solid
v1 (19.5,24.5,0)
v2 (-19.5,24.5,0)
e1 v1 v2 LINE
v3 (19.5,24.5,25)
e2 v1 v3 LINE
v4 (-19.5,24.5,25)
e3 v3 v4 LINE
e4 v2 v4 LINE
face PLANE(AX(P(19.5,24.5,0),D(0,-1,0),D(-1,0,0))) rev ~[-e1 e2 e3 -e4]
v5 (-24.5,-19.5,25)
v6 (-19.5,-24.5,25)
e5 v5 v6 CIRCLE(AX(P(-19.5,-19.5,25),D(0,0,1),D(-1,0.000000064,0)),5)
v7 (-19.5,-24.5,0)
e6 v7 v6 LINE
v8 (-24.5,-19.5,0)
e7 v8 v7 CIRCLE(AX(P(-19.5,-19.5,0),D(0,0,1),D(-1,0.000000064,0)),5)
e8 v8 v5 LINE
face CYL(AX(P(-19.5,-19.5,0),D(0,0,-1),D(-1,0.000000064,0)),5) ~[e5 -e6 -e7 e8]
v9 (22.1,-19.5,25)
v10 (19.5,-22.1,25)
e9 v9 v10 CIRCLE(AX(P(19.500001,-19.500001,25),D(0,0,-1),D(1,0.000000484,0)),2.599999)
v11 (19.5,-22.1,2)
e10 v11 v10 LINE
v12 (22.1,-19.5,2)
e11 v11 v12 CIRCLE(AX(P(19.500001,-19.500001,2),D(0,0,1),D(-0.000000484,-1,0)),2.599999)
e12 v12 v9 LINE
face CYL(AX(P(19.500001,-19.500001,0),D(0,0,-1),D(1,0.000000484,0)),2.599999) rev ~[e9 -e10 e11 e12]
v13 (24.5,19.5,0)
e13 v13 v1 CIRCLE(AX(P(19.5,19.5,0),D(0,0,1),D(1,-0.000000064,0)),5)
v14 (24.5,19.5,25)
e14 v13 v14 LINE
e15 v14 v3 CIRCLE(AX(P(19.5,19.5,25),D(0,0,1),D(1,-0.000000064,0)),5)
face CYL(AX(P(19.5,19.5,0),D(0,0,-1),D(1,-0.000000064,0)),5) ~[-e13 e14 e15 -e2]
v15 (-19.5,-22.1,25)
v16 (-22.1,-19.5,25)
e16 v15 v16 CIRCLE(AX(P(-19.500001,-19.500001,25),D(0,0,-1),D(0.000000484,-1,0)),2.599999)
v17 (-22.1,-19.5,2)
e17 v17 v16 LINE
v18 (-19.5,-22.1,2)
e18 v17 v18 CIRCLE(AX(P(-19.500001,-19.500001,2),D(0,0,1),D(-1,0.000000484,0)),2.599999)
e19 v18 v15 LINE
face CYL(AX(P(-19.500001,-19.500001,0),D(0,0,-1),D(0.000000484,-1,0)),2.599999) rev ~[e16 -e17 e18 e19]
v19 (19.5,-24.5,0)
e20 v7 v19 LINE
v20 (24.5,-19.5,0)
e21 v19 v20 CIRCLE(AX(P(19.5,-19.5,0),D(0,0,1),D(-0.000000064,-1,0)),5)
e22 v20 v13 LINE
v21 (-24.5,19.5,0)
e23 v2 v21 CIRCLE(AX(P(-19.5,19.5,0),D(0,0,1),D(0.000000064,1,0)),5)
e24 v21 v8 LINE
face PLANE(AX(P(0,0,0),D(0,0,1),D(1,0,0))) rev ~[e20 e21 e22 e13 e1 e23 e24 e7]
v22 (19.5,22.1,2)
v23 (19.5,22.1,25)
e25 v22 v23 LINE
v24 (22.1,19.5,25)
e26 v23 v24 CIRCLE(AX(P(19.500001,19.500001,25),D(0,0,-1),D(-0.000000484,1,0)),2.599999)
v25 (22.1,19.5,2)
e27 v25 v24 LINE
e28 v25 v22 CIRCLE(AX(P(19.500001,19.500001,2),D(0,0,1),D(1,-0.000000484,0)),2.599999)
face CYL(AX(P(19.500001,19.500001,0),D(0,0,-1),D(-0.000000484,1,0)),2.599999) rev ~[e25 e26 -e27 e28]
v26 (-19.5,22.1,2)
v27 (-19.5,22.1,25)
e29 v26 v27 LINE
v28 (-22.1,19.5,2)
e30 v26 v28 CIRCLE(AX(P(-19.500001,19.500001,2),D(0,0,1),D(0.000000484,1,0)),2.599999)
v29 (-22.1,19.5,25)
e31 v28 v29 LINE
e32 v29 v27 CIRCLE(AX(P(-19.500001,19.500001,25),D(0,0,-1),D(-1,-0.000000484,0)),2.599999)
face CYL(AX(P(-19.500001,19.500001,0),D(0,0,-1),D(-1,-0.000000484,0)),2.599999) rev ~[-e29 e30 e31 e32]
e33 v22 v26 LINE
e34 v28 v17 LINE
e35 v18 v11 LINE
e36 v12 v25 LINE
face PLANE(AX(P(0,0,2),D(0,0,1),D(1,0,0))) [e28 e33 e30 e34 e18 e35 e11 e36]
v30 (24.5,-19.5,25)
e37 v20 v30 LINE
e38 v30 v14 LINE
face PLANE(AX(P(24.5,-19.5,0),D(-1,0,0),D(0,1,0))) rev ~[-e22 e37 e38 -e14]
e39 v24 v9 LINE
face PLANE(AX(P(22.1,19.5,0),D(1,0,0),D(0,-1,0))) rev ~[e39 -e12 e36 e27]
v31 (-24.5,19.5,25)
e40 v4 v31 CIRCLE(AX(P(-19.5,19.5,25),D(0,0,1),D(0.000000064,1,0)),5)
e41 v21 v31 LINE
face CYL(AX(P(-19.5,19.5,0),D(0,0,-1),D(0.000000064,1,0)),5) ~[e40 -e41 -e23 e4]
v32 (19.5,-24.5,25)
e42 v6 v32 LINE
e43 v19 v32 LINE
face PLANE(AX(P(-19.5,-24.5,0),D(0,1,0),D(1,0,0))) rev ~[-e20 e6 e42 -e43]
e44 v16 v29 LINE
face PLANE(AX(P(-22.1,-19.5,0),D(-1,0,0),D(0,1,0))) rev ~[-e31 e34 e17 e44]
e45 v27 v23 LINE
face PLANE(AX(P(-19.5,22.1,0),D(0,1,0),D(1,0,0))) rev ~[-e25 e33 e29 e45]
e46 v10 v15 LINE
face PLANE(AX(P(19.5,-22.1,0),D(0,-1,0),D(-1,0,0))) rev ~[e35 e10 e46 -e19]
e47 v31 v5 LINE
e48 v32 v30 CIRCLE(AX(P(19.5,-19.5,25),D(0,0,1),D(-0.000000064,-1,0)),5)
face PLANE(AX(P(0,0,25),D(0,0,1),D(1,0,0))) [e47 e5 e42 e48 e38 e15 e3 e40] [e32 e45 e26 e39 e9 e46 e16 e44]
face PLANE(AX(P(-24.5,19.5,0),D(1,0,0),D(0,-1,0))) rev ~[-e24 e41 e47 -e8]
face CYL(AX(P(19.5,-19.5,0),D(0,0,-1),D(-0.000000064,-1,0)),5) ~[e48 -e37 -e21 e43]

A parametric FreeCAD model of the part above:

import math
import FreeCAD as App
import Part
import Sketcher
Q = App.Units.Quantity

doc = App.newDocument("Part")
body = doc.addObject("PartDesign::Body", "Body")

# Sketch on XY plane
sketch1 = doc.addObject("Sketcher::SketchObject", "Sketch")
body.addObject(sketch1)
sketch1.AttachmentSupport = (doc.XY_Plane, [""])
sketch1.MapMode = "FlatFace"
sketch1.addGeometry(Part.ArcOfCircle(Part.Circle(App.Vector(-19.5, 19.5, 0), App.Vector(0, 0, 1), 5), math.radians(89.999996), math.radians(180.000004)), False)
sketch1.addGeometry(Part.LineSegment(App.Vector(-24.5, 19.5, 0), App.Vector(-24.5, -19.5, 0)), False)
sketch1.addGeometry(Part.ArcOfCircle(Part.Circle(App.Vector(-19.5, -19.5, 0), App.Vector(0, 0, 1), 5), math.radians(179.999996), math.radians(270.000004)), False)
sketch1.addGeometry(Part.LineSegment(App.Vector(-19.5, -24.5, 0), App.Vector(19.5, -24.5, 0)), False)
sketch1.addGeometry(Part.ArcOfCircle(Part.Circle(App.Vector(19.5, -19.5, 0), App.Vector(0, 0, 1), 5), math.radians(-90.000004), math.radians(0.000004)), False)
sketch1.addGeometry(Part.LineSegment(App.Vector(24.5, -19.5, 0), App.Vector(24.5, 19.5, 0)), False)
sketch1.addGeometry(Part.ArcOfCircle(Part.Circle(App.Vector(19.5, 19.5, 0), App.Vector(0, 0, 1), 5), math.radians(-0.000004), math.radians(90.000004)), False)
sketch1.addGeometry(Part.LineSegment(App.Vector(19.5, 24.5, 0), App.Vector(-19.5, 24.5, 0)), False)
sketch1.addGeometry(Part.ArcOfCircle(Part.Circle(App.Vector(-19.500001, -19.500001, 0), App.Vector(0, 0, 1), 2.599999), math.radians(179.999972), math.radians(270.000028)), False)
sketch1.addGeometry(Part.LineSegment(App.Vector(-22.1, -19.5, 0), App.Vector(-22.1, 19.5, 0)), False)
sketch1.addGeometry(Part.ArcOfCircle(Part.Circle(App.Vector(-19.500001, 19.500001, 0), App.Vector(0, 0, 1), 2.599999), math.radians(89.999972), math.radians(180.000028)), False)
sketch1.addGeometry(Part.LineSegment(App.Vector(-19.5, 22.1, 0), App.Vector(19.5, 22.1, 0)), False)
sketch1.addGeometry(Part.ArcOfCircle(Part.Circle(App.Vector(19.500001, 19.500001, 0), App.Vector(0, 0, 1), 2.599999), math.radians(-0.000028), math.radians(90.000028)), False)
sketch1.addGeometry(Part.LineSegment(App.Vector(22.1, 19.5, 0), App.Vector(22.1, -19.5, 0)), False)
sketch1.addGeometry(Part.ArcOfCircle(Part.Circle(App.Vector(19.500001, -19.500001, 0), App.Vector(0, 0, 1), 2.599999), math.radians(-90.000028), math.radians(0.000028)), False)
sketch1.addGeometry(Part.LineSegment(App.Vector(19.5, -22.1, 0), App.Vector(-19.5, -22.1, 0)), False)
sketch1.addConstraint(Sketcher.Constraint("Tangent", 0, 2, 1, 1))
sketch1.addConstraint(Sketcher.Constraint("Tangent", 1, 2, 2, 1))
sketch1.addConstraint(Sketcher.Constraint("Tangent", 2, 2, 3, 1))
sketch1.addConstraint(Sketcher.Constraint("Tangent", 3, 2, 4, 1))
sketch1.addConstraint(Sketcher.Constraint("Tangent", 4, 2, 5, 1))
sketch1.addConstraint(Sketcher.Constraint("Tangent", 5, 2, 6, 1))
sketch1.addConstraint(Sketcher.Constraint("Tangent", 6, 2, 7, 1))
sketch1.addConstraint(Sketcher.Constraint("Tangent", 7, 2, 0, 1))
sketch1.addConstraint(Sketcher.Constraint("Tangent", 8, 1, 9, 1))
sketch1.addConstraint(Sketcher.Constraint("Tangent", 9, 2, 10, 2))
sketch1.addConstraint(Sketcher.Constraint("Tangent", 10, 1, 11, 1))
sketch1.addConstraint(Sketcher.Constraint("Tangent", 11, 2, 12, 2))
sketch1.addConstraint(Sketcher.Constraint("Tangent", 12, 1, 13, 1))
sketch1.addConstraint(Sketcher.Constraint("Tangent", 13, 2, 14, 2))
sketch1.addConstraint(Sketcher.Constraint("Tangent", 14, 1, 15, 1))
sketch1.addConstraint(Sketcher.Constraint("Tangent", 15, 2, 8, 2))
sketch1.addConstraint(Sketcher.Constraint("Vertical", 1))
sketch1.addConstraint(Sketcher.Constraint("Horizontal", 3))
sketch1.addConstraint(Sketcher.Constraint("Vertical", 5))
sketch1.addConstraint(Sketcher.Constraint("Horizontal", 7))
sketch1.addConstraint(Sketcher.Constraint("Vertical", 9))
sketch1.addConstraint(Sketcher.Constraint("Horizontal", 11))
sketch1.addConstraint(Sketcher.Constraint("Vertical", 13))
sketch1.addConstraint(Sketcher.Constraint("Horizontal", 15))
sketch1.addConstraint(Sketcher.Constraint("Coincident", 8, 3, 2, 3))
sketch1.addConstraint(Sketcher.Constraint("Coincident", 10, 3, 0, 3))
sketch1.addConstraint(Sketcher.Constraint("Coincident", 12, 3, 6, 3))
sketch1.addConstraint(Sketcher.Constraint("Equal", 0, 2))
sketch1.addConstraint(Sketcher.Constraint("Equal", 2, 4))
sketch1.addConstraint(Sketcher.Constraint("Equal", 4, 6))
sketch1.addConstraint(Sketcher.Constraint("Equal", 12, 14))
sketch1.addConstraint(Sketcher.Constraint("Symmetric", 0, 3, 4, 3, -1, 1))
sketch1.addConstraint(Sketcher.Constraint("Equal", 15, 1))
sketch1.addConstraint(Sketcher.Constraint("Radius", 0, Q("5 mm")))
sketch1.addConstraint(Sketcher.Constraint("Radius", 8, Q("2.599999 mm")))
sketch1.addConstraint(Sketcher.Constraint("DistanceX", 3, 1, 3, 2, Q("39 mm")))
pad1 = doc.addObject("PartDesign::Pad", "Pad")
body.addObject(pad1)
pad1.Profile = sketch1
pad1.Length = 25

# Sketch on XY plane
sketch2 = doc.addObject("Sketcher::SketchObject", "Sketch001")
body.addObject(sketch2)
sketch2.AttachmentSupport = (doc.XY_Plane, [""])
sketch2.MapMode = "FlatFace"
sketch2.addGeometry(Part.ArcOfCircle(Part.Circle(App.Vector(-19.500001, 19.500001, 0), App.Vector(0, 0, 1), 2.599999), math.radians(89.999972), math.radians(180.000028)), False)
sketch2.addGeometry(Part.LineSegment(App.Vector(-22.1, 19.5, 0), App.Vector(-22.1, -19.5, 0)), False)
sketch2.addGeometry(Part.ArcOfCircle(Part.Circle(App.Vector(-19.500001, -19.500001, 0), App.Vector(0, 0, 1), 2.599999), math.radians(179.999972), math.radians(270.000028)), False)
sketch2.addGeometry(Part.LineSegment(App.Vector(-19.5, -22.1, 0), App.Vector(19.5, -22.1, 0)), False)
sketch2.addGeometry(Part.ArcOfCircle(Part.Circle(App.Vector(19.500001, -19.500001, 0), App.Vector(0, 0, 1), 2.599999), math.radians(-90.000028), math.radians(0.000028)), False)
sketch2.addGeometry(Part.LineSegment(App.Vector(22.1, -19.5, 0), App.Vector(22.1, 19.5, 0)), False)
sketch2.addGeometry(Part.ArcOfCircle(Part.Circle(App.Vector(19.500001, 19.500001, 0), App.Vector(0, 0, 1), 2.599999), math.radians(-0.000028), math.radians(90.000028)), False)
sketch2.addGeometry(Part.LineSegment(App.Vector(19.5, 22.1, 0), App.Vector(-19.5, 22.1, 0)), False)
sketch2.addConstraint(Sketcher.Constraint("Tangent", 0, 2, 1, 1))
sketch2.addConstraint(Sketcher.Constraint("Tangent", 1, 2, 2, 1))
sketch2.addConstraint(Sketcher.Constraint("Tangent", 2, 2, 3, 1))
sketch2.addConstraint(Sketcher.Constraint("Tangent", 3, 2, 4, 1))
sketch2.addConstraint(Sketcher.Constraint("Tangent", 4, 2, 5, 1))
sketch2.addConstraint(Sketcher.Constraint("Tangent", 5, 2, 6, 1))
sketch2.addConstraint(Sketcher.Constraint("Tangent", 6, 2, 7, 1))
sketch2.addConstraint(Sketcher.Constraint("Tangent", 7, 2, 0, 1))
sketch2.addConstraint(Sketcher.Constraint("Vertical", 1))
sketch2.addConstraint(Sketcher.Constraint("Horizontal", 3))
sketch2.addConstraint(Sketcher.Constraint("Vertical", 5))
sketch2.addConstraint(Sketcher.Constraint("Horizontal", 7))
sketch2.addConstraint(Sketcher.Constraint("Equal", 0, 2))
sketch2.addConstraint(Sketcher.Constraint("Equal", 2, 4))
sketch2.addConstraint(Sketcher.Constraint("Equal", 4, 6))
sketch2.addConstraint(Sketcher.Constraint("Symmetric", 0, 3, 4, 3, -1, 1))
sketch2.addConstraint(Sketcher.Constraint("Equal", 7, 1))
sketch2.addConstraint(Sketcher.Constraint("Radius", 0, Q("2.599999 mm")))
sketch2.addConstraint(Sketcher.Constraint("DistanceX", 3, 1, 3, 2, Q("39 mm")))
pad2 = doc.addObject("PartDesign::Pad", "Pad001")
body.addObject(pad2)
pad2.Profile = sketch2
pad2.Length = 2

doc.recompute()
